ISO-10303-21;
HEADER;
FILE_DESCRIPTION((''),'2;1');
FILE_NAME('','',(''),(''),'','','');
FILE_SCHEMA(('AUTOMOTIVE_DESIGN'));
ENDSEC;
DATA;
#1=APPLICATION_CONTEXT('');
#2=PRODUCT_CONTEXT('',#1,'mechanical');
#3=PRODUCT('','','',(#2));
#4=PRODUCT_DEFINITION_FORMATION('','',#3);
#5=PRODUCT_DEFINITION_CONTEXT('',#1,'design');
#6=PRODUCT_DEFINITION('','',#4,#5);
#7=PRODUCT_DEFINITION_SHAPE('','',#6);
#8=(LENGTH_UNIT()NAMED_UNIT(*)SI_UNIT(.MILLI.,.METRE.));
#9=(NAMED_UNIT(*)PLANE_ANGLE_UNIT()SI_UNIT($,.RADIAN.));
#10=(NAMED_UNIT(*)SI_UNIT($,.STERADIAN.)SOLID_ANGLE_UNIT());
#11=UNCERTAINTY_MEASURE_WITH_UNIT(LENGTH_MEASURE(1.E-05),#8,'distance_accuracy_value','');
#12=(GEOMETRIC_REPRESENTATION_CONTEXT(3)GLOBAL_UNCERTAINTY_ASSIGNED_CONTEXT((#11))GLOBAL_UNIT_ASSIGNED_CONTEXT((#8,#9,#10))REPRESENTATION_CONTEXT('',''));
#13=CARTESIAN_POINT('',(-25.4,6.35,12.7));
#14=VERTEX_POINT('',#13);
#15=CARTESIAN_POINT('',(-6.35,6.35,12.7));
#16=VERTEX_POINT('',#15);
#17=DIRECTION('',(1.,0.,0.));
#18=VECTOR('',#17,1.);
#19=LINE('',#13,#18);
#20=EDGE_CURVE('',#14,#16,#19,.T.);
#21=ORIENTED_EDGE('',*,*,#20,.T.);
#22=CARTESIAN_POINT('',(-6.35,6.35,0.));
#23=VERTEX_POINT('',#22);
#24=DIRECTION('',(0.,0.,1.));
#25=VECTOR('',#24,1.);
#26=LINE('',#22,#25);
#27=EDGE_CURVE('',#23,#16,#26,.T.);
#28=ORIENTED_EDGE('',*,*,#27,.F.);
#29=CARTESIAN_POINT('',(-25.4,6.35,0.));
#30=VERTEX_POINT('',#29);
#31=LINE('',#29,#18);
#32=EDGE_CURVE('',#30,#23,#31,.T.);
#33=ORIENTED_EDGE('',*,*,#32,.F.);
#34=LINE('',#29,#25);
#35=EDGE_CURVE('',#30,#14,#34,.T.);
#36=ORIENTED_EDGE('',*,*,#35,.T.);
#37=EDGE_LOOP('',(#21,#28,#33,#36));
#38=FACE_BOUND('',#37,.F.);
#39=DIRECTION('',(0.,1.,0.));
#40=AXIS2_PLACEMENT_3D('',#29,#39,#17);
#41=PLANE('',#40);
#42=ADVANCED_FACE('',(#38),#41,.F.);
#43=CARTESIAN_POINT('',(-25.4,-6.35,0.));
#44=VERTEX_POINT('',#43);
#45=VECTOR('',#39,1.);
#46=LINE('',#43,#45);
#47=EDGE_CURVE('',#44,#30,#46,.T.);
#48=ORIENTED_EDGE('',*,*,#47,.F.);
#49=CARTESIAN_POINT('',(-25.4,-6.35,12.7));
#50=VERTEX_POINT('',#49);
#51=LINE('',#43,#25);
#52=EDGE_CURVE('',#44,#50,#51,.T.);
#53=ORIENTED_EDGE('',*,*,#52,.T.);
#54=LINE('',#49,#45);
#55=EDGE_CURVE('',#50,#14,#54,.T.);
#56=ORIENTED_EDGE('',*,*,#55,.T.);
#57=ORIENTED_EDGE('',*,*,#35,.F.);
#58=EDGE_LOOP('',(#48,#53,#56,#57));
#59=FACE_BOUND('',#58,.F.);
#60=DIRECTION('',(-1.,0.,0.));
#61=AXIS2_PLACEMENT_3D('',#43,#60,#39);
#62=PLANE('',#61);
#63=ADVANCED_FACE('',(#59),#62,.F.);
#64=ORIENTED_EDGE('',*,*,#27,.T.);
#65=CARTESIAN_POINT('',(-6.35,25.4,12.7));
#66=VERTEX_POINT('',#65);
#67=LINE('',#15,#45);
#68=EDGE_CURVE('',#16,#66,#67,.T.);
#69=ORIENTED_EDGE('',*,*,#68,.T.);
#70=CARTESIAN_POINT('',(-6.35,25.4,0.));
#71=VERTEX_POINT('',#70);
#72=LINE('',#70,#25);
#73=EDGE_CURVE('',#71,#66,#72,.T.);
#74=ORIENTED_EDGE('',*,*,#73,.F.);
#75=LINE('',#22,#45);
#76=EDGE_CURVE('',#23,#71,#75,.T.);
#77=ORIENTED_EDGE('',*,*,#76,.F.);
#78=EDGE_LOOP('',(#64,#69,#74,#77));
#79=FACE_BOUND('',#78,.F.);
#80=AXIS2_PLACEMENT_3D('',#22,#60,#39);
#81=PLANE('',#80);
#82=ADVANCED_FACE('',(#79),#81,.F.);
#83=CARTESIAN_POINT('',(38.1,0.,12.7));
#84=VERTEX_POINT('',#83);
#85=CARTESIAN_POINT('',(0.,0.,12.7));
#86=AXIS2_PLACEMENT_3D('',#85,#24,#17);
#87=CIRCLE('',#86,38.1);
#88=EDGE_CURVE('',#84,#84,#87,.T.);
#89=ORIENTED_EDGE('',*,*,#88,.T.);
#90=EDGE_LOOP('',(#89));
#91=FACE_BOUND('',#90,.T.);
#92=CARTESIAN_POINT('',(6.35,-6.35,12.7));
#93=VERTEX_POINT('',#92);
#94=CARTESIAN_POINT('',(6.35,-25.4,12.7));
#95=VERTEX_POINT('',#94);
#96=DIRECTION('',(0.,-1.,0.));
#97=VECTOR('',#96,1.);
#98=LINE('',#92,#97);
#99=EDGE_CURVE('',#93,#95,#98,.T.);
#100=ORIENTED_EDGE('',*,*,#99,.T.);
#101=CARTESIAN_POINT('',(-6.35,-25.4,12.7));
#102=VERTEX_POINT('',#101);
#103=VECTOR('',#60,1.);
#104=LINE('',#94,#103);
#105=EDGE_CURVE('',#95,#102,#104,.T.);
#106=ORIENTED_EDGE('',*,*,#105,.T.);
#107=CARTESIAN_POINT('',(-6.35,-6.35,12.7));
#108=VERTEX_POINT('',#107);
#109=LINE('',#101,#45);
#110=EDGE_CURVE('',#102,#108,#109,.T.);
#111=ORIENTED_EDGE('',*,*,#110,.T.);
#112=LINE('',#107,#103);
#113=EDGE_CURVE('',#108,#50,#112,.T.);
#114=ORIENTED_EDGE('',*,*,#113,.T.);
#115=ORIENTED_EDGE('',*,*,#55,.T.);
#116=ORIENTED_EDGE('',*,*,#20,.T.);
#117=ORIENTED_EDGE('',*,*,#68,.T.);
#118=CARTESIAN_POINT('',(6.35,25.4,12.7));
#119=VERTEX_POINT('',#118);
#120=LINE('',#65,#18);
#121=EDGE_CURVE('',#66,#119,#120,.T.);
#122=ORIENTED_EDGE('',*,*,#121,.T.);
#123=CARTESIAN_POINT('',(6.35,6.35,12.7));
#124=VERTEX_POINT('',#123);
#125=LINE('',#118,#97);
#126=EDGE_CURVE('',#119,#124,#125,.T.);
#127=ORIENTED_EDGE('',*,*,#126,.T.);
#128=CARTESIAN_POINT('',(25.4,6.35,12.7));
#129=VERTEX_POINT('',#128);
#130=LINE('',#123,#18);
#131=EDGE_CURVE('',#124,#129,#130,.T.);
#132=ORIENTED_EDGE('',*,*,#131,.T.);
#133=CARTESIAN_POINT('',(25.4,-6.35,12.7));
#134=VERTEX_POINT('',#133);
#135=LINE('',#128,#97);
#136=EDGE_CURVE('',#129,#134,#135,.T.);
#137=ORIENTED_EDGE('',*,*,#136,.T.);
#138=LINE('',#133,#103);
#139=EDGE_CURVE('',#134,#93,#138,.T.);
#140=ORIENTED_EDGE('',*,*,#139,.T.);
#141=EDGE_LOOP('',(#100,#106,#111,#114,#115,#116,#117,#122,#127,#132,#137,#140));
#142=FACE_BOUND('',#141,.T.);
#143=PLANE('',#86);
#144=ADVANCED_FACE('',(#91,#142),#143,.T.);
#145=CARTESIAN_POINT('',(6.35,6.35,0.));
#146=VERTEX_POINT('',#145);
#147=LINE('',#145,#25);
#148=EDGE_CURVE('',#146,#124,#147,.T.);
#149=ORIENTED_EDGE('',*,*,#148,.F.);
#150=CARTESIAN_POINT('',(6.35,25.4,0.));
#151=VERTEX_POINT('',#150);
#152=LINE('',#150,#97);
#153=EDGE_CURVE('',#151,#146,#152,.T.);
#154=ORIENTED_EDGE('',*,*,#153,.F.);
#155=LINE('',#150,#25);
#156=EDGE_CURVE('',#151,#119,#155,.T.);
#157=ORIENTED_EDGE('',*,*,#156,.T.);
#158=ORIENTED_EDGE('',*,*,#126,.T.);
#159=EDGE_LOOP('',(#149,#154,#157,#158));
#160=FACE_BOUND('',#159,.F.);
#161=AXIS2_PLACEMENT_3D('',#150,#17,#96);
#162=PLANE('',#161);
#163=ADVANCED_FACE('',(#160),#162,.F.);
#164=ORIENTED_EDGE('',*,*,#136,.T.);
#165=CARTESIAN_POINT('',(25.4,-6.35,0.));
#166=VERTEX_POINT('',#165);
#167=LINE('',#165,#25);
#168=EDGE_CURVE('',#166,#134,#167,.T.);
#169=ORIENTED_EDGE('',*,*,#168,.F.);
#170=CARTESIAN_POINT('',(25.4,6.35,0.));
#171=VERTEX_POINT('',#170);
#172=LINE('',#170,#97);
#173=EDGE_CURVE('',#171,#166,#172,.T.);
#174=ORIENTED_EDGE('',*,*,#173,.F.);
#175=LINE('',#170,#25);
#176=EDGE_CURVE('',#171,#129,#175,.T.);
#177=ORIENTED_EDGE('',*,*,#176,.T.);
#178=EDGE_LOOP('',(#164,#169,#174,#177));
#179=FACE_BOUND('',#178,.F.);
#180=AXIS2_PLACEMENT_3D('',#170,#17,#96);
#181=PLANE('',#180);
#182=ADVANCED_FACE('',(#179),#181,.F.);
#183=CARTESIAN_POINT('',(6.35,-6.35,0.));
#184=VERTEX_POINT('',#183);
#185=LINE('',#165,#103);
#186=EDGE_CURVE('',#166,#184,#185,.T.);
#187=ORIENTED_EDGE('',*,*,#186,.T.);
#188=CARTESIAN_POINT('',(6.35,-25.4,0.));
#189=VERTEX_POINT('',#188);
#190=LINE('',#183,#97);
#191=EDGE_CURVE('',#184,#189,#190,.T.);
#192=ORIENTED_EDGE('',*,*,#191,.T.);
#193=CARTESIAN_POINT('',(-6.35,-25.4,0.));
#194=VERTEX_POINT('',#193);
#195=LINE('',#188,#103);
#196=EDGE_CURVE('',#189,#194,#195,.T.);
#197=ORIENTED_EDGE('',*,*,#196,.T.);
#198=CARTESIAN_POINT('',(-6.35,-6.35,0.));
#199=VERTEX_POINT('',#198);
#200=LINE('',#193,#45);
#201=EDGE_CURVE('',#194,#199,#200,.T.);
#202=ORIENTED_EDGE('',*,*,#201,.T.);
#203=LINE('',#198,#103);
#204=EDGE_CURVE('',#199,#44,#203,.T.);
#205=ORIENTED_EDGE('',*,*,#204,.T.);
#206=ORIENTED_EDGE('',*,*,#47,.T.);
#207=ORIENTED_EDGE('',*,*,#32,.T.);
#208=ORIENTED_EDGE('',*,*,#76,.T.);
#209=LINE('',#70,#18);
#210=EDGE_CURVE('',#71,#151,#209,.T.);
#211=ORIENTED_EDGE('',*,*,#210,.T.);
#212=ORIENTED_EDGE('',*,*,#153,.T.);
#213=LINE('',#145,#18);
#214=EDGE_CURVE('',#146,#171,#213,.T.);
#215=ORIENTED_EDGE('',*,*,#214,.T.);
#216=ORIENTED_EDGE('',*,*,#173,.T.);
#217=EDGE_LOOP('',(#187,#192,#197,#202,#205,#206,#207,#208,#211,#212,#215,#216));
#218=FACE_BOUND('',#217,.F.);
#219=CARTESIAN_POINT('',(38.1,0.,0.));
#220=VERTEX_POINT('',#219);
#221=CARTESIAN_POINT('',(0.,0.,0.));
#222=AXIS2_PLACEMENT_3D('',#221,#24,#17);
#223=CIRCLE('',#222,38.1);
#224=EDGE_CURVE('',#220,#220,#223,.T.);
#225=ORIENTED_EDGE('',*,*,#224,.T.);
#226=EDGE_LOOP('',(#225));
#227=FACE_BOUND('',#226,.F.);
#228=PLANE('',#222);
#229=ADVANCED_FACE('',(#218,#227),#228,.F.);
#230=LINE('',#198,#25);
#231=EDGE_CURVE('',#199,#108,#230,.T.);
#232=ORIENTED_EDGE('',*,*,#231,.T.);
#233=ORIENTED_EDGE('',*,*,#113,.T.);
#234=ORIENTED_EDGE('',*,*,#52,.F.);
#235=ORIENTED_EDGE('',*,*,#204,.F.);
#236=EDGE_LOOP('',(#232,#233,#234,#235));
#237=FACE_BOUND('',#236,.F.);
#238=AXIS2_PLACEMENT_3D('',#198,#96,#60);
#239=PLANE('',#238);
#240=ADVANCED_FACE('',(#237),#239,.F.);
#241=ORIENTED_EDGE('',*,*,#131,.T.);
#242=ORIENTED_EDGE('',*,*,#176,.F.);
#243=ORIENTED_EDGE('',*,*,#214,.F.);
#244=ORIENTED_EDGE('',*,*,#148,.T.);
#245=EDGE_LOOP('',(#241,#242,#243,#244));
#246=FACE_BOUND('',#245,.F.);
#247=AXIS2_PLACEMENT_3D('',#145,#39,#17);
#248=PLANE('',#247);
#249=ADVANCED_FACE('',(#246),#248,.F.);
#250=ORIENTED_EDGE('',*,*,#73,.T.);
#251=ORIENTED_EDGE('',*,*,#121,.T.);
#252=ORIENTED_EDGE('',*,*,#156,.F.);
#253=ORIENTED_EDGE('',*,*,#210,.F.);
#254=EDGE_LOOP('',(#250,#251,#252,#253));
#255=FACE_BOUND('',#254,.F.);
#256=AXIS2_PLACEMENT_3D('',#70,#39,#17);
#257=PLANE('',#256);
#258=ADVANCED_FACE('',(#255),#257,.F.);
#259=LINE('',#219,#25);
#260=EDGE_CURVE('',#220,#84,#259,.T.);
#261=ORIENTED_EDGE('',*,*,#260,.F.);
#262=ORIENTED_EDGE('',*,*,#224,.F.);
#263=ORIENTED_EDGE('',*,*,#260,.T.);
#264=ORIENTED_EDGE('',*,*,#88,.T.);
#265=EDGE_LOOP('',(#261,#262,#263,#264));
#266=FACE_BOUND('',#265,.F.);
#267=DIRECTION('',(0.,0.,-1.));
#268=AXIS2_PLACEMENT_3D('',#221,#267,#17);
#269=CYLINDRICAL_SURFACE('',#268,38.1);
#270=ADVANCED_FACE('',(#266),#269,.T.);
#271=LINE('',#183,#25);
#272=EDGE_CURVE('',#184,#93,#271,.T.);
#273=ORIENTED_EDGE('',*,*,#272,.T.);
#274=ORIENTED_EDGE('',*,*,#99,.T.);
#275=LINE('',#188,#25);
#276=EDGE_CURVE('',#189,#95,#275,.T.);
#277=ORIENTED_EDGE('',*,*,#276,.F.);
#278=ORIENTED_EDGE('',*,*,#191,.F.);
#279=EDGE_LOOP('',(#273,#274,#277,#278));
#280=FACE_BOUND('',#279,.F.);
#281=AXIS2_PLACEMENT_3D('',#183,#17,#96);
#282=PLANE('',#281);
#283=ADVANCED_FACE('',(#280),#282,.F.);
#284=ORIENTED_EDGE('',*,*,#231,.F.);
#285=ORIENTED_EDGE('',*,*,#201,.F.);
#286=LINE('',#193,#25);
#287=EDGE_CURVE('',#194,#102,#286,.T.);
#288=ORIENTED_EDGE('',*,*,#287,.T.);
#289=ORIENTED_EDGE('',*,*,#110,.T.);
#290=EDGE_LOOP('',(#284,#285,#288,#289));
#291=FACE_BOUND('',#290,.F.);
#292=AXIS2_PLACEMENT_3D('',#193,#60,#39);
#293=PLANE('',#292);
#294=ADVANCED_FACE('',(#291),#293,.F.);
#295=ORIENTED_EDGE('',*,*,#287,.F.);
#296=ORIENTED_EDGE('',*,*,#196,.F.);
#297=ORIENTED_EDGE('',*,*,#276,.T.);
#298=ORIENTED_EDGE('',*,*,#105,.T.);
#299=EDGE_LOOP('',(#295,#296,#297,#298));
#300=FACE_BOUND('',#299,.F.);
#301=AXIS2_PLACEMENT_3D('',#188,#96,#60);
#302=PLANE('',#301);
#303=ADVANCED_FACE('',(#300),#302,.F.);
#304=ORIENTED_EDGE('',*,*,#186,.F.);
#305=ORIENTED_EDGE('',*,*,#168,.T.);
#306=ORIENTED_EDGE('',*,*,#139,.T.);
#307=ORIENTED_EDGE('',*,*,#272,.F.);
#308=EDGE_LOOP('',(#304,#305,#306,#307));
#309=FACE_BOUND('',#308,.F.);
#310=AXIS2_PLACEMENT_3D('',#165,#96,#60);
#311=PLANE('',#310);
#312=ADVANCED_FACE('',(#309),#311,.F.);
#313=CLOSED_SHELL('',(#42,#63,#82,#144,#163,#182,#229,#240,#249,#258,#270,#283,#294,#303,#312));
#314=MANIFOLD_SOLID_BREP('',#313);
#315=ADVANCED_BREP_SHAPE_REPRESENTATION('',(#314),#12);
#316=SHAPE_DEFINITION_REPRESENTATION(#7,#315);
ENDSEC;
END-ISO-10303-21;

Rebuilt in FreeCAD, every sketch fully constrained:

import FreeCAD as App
import Part
import Sketcher
Q = App.Units.Quantity


def add_polygon(sketch, points):
    """Adds a closed chain of lines whose ends are joined by coincident constraints."""
    first, n = sketch.GeometryCount, len(points)
    for a, b in zip(points, points[1:] + points[:1]):
        sketch.addGeometry(Part.LineSegment(App.Vector(*a, 0), App.Vector(*b, 0)), False)
    for i in range(n):
        sketch.addConstraint(Sketcher.Constraint("Coincident", first + i, 2, first + (i + 1) % n, 1))

doc = App.newDocument("Part")
params = doc.addObject("Spreadsheet::Sheet", "Params")
for row, (alias, value) in enumerate([
    ("sketch1_diameter", "3 in"),
    ("sketch1_width", "0.5 in"),
    ("pad1_length", "0.5 in"),
], start=1):
    params.set(f"A{row}", alias)
    params.set(f"B{row}", "=" + value)
    params.setAlias(f"B{row}", alias)

body = doc.addObject("PartDesign::Body", "Body")

sketch1 = body.newObject("Sketcher::SketchObject", "Sketch")
sketch1.AttachmentSupport = (doc.getObject("XY_Plane"), [""])
sketch1.MapMode = "FlatFace"
sketch1.addGeometry(Part.Circle(App.Vector(0, 0, 0), App.Vector(0, 0, 1), 38), False)
add_polygon(sketch1, [(-6, 25), (6, 25), (6, 6), (25, 6), (25, -6), (6, -6), (6, -25), (-6, -25), (-6, -6), (-25, -6), (-25, 6), (-6, 6)])
sketch1.addConstraint(Sketcher.Constraint("Horizontal", 1))
sketch1.addConstraint(Sketcher.Constraint("Vertical", 2))
sketch1.addConstraint(Sketcher.Constraint("Horizontal", 3))
sketch1.addConstraint(Sketcher.Constraint("Vertical", 4))
sketch1.addConstraint(Sketcher.Constraint("Horizontal", 5))
sketch1.addConstraint(Sketcher.Constraint("Vertical", 6))
sketch1.addConstraint(Sketcher.Constraint("Horizontal", 7))
sketch1.addConstraint(Sketcher.Constraint("Vertical", 8))
sketch1.addConstraint(Sketcher.Constraint("Horizontal", 9))
sketch1.addConstraint(Sketcher.Constraint("Vertical", 10))
sketch1.addConstraint(Sketcher.Constraint("Horizontal", 11))
sketch1.addConstraint(Sketcher.Constraint("Vertical", 12))
sketch1.addConstraint(Sketcher.Constraint("Coincident", 0, 3, -1, 1))
sketch1.addConstraint(Sketcher.Constraint("Symmetric", 1, 2, 7, 2, -1, 1))
sketch1.addConstraint(Sketcher.Constraint("Symmetric", 3, 2, 9, 2, -1, 1))
sketch1.addConstraint(Sketcher.Constraint("Symmetric", 5, 2, 11, 2, -1, 1))
sketch1.addConstraint(Sketcher.Constraint("Symmetric", 5, 2, 8, 2, -2))
sketch1.addConstraint(Sketcher.Constraint("Equal", 11, 2))
sketch1.addConstraint(Sketcher.Constraint("Equal", 7, 4))
sketch1.addConstraint(Sketcher.Constraint("Diameter", 0, Q("3 in")))
sketch1.addConstraint(Sketcher.Constraint("DistanceX", 1, 1, 1, 2, Q("0.5 in")))
sketch1.addConstraint(Sketcher.Constraint("DistanceY", -1, 1, 1, 2, Q("1 in")))
sketch1.setExpression("Constraints[31]", "Params.sketch1_diameter")
sketch1.setExpression("Constraints[32]", "Params.sketch1_width")
pad1 = body.newObject("PartDesign::Pad", "Pad")
pad1.Profile = sketch1
pad1.setExpression("Length", "Params.pad1_length")

doc.recompute()
